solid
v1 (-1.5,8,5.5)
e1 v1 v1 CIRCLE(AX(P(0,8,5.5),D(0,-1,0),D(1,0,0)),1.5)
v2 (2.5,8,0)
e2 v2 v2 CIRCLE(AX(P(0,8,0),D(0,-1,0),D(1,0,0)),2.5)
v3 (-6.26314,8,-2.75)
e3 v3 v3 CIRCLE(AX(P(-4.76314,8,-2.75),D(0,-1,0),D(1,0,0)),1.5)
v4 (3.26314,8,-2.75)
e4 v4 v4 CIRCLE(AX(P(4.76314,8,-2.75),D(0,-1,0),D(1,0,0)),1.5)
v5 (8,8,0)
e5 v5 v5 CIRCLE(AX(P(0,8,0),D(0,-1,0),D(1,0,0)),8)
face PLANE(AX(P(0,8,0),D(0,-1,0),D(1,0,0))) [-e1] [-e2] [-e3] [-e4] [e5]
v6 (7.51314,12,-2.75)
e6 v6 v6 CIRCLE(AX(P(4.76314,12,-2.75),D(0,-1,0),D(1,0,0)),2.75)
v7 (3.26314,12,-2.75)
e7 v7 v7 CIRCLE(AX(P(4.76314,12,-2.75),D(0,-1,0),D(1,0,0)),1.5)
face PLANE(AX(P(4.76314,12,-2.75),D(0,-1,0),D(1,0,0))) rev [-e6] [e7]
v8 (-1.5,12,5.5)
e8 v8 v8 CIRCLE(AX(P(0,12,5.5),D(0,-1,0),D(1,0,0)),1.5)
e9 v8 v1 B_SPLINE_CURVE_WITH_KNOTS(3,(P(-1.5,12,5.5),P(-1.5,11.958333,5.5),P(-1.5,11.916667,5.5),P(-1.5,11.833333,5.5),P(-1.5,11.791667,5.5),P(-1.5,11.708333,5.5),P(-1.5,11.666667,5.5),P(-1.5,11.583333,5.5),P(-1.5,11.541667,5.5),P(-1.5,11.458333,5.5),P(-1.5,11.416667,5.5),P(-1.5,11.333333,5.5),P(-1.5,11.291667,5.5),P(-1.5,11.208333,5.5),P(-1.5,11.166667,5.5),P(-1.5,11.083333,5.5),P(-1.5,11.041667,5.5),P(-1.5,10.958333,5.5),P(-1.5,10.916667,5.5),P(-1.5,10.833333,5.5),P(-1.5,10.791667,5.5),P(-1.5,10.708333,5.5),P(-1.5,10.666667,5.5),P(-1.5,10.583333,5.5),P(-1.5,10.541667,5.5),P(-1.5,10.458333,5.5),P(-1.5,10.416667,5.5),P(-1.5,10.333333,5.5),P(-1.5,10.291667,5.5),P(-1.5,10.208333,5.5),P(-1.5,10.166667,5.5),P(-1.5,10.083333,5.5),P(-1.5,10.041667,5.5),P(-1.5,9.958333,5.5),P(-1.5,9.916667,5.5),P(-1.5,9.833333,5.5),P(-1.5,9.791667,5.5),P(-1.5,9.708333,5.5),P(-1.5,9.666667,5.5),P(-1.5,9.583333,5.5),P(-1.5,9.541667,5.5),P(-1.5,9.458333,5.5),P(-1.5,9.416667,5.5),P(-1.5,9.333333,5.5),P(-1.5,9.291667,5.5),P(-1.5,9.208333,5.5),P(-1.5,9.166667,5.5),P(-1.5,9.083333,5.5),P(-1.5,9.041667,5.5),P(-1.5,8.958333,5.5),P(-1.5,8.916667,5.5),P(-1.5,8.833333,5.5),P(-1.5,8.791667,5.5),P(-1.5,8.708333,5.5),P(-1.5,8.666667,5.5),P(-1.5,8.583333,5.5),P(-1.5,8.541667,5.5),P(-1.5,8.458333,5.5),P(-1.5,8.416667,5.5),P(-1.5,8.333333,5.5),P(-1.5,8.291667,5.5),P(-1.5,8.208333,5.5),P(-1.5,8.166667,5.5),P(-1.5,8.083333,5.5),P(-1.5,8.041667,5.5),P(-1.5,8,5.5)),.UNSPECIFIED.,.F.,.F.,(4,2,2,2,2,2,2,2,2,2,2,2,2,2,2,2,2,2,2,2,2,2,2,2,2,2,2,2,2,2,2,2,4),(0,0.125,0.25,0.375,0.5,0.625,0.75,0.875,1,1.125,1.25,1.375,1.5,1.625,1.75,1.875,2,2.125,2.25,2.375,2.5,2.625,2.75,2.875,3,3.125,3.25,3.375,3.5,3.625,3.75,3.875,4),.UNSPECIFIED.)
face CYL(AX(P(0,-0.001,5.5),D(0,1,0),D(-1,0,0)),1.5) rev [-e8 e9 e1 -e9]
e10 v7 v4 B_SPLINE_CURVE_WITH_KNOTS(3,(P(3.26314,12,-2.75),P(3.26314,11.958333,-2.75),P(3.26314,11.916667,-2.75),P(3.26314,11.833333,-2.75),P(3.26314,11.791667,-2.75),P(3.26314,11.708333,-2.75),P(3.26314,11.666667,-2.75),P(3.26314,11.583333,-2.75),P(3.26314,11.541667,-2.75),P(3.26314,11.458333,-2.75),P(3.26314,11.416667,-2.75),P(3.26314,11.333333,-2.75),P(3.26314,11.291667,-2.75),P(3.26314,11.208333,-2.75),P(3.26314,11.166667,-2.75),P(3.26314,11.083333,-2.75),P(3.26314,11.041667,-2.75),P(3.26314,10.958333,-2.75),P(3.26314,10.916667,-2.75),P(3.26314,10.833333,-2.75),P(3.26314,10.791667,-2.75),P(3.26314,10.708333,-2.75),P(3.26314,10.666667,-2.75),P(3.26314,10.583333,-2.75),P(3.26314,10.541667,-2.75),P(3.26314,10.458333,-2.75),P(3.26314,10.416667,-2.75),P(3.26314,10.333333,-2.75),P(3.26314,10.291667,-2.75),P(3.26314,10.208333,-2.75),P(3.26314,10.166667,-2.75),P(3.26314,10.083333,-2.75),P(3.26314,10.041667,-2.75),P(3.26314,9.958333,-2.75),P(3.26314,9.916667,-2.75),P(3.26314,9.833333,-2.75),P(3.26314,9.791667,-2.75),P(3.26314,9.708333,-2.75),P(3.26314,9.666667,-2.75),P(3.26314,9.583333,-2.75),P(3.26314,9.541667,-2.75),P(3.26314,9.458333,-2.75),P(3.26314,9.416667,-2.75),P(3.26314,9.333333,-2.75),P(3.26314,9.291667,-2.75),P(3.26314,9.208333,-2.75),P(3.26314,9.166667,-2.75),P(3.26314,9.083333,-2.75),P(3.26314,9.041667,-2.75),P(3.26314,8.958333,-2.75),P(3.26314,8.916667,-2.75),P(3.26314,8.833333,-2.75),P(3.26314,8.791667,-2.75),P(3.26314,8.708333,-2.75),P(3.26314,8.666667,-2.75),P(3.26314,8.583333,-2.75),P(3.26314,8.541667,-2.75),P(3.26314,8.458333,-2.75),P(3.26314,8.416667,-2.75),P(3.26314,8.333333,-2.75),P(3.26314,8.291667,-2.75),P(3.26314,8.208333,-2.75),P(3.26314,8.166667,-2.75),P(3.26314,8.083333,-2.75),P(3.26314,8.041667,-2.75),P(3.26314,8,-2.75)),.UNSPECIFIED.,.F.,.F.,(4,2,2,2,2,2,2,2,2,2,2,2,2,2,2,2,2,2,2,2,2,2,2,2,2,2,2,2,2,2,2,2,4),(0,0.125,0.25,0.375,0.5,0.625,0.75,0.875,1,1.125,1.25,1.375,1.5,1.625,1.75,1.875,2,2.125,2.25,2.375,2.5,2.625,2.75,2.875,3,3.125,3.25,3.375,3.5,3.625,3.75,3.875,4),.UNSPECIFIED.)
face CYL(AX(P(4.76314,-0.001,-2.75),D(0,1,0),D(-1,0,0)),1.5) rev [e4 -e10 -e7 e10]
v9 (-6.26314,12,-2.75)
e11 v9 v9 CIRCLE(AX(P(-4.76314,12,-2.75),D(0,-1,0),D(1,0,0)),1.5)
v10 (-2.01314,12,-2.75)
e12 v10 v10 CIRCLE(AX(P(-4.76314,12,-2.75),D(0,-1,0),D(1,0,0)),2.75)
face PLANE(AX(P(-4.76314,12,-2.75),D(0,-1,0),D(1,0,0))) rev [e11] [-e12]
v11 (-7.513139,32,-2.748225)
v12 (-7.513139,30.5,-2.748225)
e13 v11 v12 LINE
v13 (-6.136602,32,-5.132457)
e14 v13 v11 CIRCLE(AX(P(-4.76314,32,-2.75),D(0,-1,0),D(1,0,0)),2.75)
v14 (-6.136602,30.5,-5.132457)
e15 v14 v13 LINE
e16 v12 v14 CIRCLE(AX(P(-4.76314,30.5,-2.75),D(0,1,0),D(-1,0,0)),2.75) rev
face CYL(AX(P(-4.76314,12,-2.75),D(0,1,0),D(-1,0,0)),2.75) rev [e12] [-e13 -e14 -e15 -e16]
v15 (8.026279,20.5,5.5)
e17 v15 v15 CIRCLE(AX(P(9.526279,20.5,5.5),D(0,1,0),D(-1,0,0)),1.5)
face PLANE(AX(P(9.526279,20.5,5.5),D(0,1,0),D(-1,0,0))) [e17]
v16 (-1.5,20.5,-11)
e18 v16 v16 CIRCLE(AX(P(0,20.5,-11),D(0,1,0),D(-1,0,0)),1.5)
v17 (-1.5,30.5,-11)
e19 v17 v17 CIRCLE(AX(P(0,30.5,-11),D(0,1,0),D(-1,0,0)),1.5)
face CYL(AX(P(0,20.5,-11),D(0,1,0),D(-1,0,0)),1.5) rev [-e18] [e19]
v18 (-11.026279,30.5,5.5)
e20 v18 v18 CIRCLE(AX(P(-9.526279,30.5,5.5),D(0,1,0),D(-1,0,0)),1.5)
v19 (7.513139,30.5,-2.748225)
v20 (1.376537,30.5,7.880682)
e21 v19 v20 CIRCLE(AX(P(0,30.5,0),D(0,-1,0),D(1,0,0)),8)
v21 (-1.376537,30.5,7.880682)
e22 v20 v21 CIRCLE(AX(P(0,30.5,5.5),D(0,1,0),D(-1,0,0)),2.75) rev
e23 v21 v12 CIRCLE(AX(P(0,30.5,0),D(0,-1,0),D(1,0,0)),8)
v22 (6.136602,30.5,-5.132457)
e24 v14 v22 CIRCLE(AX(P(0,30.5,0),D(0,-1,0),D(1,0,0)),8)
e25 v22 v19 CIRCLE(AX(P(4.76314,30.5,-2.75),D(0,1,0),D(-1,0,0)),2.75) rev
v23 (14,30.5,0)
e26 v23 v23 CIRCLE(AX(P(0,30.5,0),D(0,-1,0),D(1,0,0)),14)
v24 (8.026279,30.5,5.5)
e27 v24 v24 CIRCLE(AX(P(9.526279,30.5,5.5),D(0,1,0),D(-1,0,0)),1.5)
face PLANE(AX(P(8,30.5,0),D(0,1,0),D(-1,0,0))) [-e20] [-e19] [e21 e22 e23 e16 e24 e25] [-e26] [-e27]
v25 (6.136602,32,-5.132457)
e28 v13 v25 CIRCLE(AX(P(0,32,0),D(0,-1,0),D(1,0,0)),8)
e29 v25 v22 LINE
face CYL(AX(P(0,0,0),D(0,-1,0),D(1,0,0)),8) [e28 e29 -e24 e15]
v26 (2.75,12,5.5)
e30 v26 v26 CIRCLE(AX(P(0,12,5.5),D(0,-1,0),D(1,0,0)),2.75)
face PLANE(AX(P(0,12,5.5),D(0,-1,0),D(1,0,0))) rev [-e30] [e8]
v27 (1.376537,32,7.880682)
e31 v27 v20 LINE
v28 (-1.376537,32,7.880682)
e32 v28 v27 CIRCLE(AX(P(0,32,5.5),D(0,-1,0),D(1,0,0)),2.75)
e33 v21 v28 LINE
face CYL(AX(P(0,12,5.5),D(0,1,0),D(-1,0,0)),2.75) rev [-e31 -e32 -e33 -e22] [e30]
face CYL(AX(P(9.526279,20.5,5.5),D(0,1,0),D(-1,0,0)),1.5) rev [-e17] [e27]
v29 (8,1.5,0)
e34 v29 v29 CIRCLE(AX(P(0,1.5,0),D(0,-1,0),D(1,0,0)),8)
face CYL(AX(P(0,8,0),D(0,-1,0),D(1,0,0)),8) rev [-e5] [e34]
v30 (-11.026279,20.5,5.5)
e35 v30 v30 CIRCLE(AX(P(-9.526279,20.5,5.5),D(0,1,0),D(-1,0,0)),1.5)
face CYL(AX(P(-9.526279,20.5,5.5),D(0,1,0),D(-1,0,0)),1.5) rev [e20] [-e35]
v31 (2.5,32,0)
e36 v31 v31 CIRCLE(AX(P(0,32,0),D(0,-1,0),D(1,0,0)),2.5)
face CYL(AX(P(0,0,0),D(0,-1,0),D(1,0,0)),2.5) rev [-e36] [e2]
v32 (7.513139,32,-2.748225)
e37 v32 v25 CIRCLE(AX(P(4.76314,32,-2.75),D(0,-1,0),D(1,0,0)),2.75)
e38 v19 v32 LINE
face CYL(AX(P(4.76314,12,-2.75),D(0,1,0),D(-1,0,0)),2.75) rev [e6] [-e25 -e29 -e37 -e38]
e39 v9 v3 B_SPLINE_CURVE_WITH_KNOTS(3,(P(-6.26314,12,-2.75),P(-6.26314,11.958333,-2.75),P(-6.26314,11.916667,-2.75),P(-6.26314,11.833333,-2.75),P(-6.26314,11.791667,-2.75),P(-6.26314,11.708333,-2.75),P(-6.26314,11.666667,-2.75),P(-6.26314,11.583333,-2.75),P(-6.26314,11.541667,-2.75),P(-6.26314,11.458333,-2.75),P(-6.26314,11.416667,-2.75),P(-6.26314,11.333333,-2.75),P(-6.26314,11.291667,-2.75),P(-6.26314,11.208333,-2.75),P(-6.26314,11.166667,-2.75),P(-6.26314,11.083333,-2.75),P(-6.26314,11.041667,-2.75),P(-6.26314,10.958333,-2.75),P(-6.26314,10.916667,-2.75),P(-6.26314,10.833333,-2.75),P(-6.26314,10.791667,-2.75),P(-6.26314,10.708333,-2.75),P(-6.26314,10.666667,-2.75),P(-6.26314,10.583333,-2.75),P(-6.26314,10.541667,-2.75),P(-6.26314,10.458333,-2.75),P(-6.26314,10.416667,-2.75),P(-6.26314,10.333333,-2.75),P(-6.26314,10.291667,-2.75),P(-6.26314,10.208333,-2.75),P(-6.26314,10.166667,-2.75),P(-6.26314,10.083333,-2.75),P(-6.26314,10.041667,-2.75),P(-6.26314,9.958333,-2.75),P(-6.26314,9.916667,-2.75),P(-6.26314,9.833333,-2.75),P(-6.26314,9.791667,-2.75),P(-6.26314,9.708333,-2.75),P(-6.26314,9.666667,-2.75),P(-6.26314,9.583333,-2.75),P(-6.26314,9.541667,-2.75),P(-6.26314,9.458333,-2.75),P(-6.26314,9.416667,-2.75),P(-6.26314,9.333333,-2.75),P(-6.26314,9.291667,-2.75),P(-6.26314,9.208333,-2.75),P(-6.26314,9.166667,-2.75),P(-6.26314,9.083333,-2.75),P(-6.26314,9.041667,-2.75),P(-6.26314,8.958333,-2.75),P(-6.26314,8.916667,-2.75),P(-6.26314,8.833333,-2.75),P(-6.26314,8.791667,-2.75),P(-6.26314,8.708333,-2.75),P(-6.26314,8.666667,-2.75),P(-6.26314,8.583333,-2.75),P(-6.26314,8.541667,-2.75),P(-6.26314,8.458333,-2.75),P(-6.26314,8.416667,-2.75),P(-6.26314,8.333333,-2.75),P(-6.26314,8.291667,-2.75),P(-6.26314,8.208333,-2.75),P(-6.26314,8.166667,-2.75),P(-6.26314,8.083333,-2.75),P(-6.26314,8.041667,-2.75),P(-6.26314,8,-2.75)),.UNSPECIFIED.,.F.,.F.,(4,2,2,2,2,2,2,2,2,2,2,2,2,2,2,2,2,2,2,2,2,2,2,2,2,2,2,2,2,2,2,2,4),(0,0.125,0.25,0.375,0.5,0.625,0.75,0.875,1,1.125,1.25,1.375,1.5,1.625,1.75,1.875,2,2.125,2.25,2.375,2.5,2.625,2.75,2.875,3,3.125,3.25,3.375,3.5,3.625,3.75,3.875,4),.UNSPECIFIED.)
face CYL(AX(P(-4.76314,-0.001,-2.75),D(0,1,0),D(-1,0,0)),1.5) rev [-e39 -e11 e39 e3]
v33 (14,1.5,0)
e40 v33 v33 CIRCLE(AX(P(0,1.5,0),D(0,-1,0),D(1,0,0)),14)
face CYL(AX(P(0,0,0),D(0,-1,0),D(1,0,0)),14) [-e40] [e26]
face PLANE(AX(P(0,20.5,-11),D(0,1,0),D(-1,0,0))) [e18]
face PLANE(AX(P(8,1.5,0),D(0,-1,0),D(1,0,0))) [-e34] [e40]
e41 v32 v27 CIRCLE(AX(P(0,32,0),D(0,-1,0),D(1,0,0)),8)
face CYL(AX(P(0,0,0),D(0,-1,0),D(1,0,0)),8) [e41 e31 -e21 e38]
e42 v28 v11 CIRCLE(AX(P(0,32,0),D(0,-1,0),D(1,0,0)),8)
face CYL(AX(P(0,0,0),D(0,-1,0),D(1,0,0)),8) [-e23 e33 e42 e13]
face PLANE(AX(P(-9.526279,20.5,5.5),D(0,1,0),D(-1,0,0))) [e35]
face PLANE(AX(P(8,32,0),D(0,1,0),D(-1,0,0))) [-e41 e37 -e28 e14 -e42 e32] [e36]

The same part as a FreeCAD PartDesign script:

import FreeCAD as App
import Part
import Sketcher

doc = App.newDocument("Part")
body = doc.addObject("PartDesign::Body", "Body")

# Sketch on XY plane
sketch1 = body.newObject("Sketcher::SketchObject", "Sketch")
sketch1.AttachmentSupport = (doc.getObject("XY_Plane"), [""])
sketch1.MapMode = "FlatFace"
sketch1.addGeometry([
    Part.LineSegment(App.Vector(8, 0, 0), App.Vector(8, 1.5, 0)),  # 0
    Part.LineSegment(App.Vector(8, 1.5, 0), App.Vector(14, 1.5, 0)),  # 1
    Part.LineSegment(App.Vector(14, 1.5, 0), App.Vector(14, 30.5, 0)),  # 2
    Part.LineSegment(App.Vector(14, 30.5, 0), App.Vector(8, 30.5, 0)),  # 3
    Part.LineSegment(App.Vector(8, 30.5, 0), App.Vector(8, 32, 0)),  # 4
    Part.LineSegment(App.Vector(8, 32, 0), App.Vector(2.5, 32, 0)),  # 5
    Part.LineSegment(App.Vector(2.5, 32, 0), App.Vector(2.5, 0, 0)),  # 6
    Part.LineSegment(App.Vector(2.5, 0, 0), App.Vector(8, 0, 0)),  # 7
], False)
sketch1.addConstraint([
    Sketcher.Constraint("Coincident", 0, 2, 1, 1),
    Sketcher.Constraint("Coincident", 1, 2, 2, 1),
    Sketcher.Constraint("Coincident", 2, 2, 3, 1),
    Sketcher.Constraint("Coincident", 3, 2, 4, 1),
    Sketcher.Constraint("Coincident", 4, 2, 5, 1),
    Sketcher.Constraint("Coincident", 5, 2, 6, 1),
    Sketcher.Constraint("Coincident", 6, 2, 7, 1),
    Sketcher.Constraint("Coincident", 7, 2, 0, 1),
    Sketcher.Constraint("Vertical", 0),
    Sketcher.Constraint("Horizontal", 1),
    Sketcher.Constraint("Vertical", 2),
    Sketcher.Constraint("Horizontal", 3),
    Sketcher.Constraint("Vertical", 4),
    Sketcher.Constraint("Horizontal", 5),
    Sketcher.Constraint("Vertical", 6),
    Sketcher.Constraint("Horizontal", 7),
    Sketcher.Constraint("PointOnObject", 6, 2, -1),
    Sketcher.Constraint("Vertical", 0, 2, 3, 2),
    Sketcher.Constraint("Equal", 0, 4),
    Sketcher.Constraint("DistanceX", 1, 1, 1, 2, 6.0),
    Sketcher.Constraint("DistanceY", 2, 1, 2, 2, 29.0),
    Sketcher.Constraint("DistanceY", 6, 2, 6, 1, 32.0),
    Sketcher.Constraint("DistanceX", 5, 2, 5, 1, 5.5),
    Sketcher.Constraint("DistanceX", -1, 1, 0, 2, 8.0),
])
revolution = body.newObject("PartDesign::Revolution", "Revolution")
revolution.Profile = sketch1
revolution.ReferenceAxis = (sketch1, ["V_Axis"])
revolution.Angle = 360

# Sketch on XZ plane
sketch2 = body.newObject("Sketcher::SketchObject", "Sketch001")
sketch2.AttachmentSupport = (doc.getObject("XZ_Plane"), [""])
sketch2.MapMode = "FlatFace"
sketch2.AttachmentOffset = App.Placement(App.Vector(0, 0, -30.5), App.Rotation())
sketch2.addGeometry([
    Part.Circle(App.Vector(0, -11, 0), App.Vector(0, 0, 1), 1.5),
    Part.Circle(App.Vector(9.526279, 5.5, 0), App.Vector(0, 0, 1), 1.5),
    Part.Circle(App.Vector(-9.526279, 5.5, 0), App.Vector(0, 0, 1), 1.5),
], False)
sketch2.addConstraint([
    Sketcher.Constraint("Equal", 0, 1),
    Sketcher.Constraint("Equal", 1, 2),
    Sketcher.Constraint("Symmetric", 1, 3, 2, 3, -2),
    Sketcher.Constraint("PointOnObject", 0, 3, -2),
    Sketcher.Constraint("Diameter", 0, 3.0),
    Sketcher.Constraint("DistanceY", 0, 3, -1, 1, 11.0),
    Sketcher.Constraint("DistanceY", -1, 1, 1, 3, 5.5),
    Sketcher.Constraint("DistanceX", -1, 1, 1, 3, 9.526279),
])
pocket1 = body.newObject("PartDesign::Pocket", "Pocket")
pocket1.Profile = sketch2
pocket1.Length = 10
pocket1.Reversed = True

# Sketch on XZ plane
sketch3 = body.newObject("Sketcher::SketchObject", "Sketch002")
sketch3.AttachmentSupport = (doc.getObject("XZ_Plane"), [""])
sketch3.MapMode = "FlatFace"
sketch3.AttachmentOffset = App.Placement(App.Vector(0, 0, -1.5), App.Rotation())
sketch3.addGeometry([
    Part.Circle(App.Vector(0, 5.5, 0), App.Vector(0, 0, 1), 1.5),
    Part.Circle(App.Vector(4.76314, -2.75, 0), App.Vector(0, 0, 1), 1.5),
    Part.Circle(App.Vector(-4.76314, -2.75, 0), App.Vector(0, 0, 1), 1.5),
], False)
sketch3.addConstraint([
    Sketcher.Constraint("Equal", 0, 1),
    Sketcher.Constraint("Equal", 1, 2),
    Sketcher.Constraint("Symmetric", 1, 3, 2, 3, -2),
    Sketcher.Constraint("PointOnObject", 0, 3, -2),
    Sketcher.Constraint("Diameter", 0, 3.0),
    Sketcher.Constraint("DistanceY", -1, 1, 0, 3, 5.5),
    Sketcher.Constraint("DistanceY", 1, 3, -1, 1, 2.75),
    Sketcher.Constraint("DistanceX", -1, 1, 1, 3, 4.76314),
])
pocket2 = body.newObject("PartDesign::Pocket", "Pocket001")
pocket2.Profile = sketch3
pocket2.Length = 37.362756

# Sketch on XZ plane
sketch4 = body.newObject("Sketcher::SketchObject", "Sketch003")
sketch4.AttachmentSupport = (doc.getObject("XZ_Plane"), [""])
sketch4.MapMode = "FlatFace"
sketch4.AttachmentOffset = App.Placement(App.Vector(0, 0, -1.5), App.Rotation())
sketch4.addGeometry(Part.Circle(App.Vector(0, 5.5, 0), App.Vector(0, 0, 1), 1.5), False)
sketch4.addConstraint([
    Sketcher.Constraint("PointOnObject", 0, 3, -2),
    Sketcher.Constraint("Diameter", 0, 3.0),
    Sketcher.Constraint("DistanceY", -1, 1, 0, 3, 5.5),
])
pocket3 = body.newObject("PartDesign::Pocket", "Pocket002")
pocket3.Profile = sketch4
pocket3.Type = "UpToFirst"
pocket3.Reversed = True

# Sketch on XZ plane
sketch5 = body.newObject("Sketcher::SketchObject", "Sketch004")
sketch5.AttachmentSupport = (doc.getObject("XZ_Plane"), [""])
sketch5.MapMode = "FlatFace"
sketch5.AttachmentOffset = App.Placement(App.Vector(0, 0, -1.5), App.Rotation())
sketch5.addGeometry(Part.Circle(App.Vector(4.76314, -2.75, 0), App.Vector(0, 0, 1), 1.5), False)
sketch5.addConstraint([
    Sketcher.Constraint("Diameter", 0, 3.0),
    Sketcher.Constraint("DistanceY", 0, 3, -1, 1, 2.75),
    Sketcher.Constraint("DistanceX", -1, 1, 0, 3, 4.76314),
])
pocket4 = body.newObject("PartDesign::Pocket", "Pocket003")
pocket4.Profile = sketch5
pocket4.Type = "UpToFirst"
pocket4.Reversed = True

# Sketch on XZ plane
sketch6 = body.newObject("Sketcher::SketchObject", "Sketch005")
sketch6.AttachmentSupport = (doc.getObject("XZ_Plane"), [""])
sketch6.MapMode = "FlatFace"
sketch6.AttachmentOffset = App.Placement(App.Vector(0, 0, -1.5), App.Rotation())
sketch6.addGeometry(Part.Circle(App.Vector(-4.76314, -2.75, 0), App.Vector(0, 0, 1), 1.5), False)
sketch6.addConstraint([
    Sketcher.Constraint("Diameter", 0, 3.0),
    Sketcher.Constraint("DistanceY", 0, 3, -1, 1, 2.75),
    Sketcher.Constraint("DistanceX", 0, 3, -1, 1, 4.76314),
])
pocket5 = body.newObject("PartDesign::Pocket", "Pocket004")
pocket5.Profile = sketch6
pocket5.Type = "UpToFirst"
pocket5.Reversed = True

# Sketch on XZ plane
sketch7 = body.newObject("Sketcher::SketchObject", "Sketch006")
sketch7.AttachmentSupport = (doc.getObject("XZ_Plane"), [""])
sketch7.MapMode = "FlatFace"
sketch7.AttachmentOffset = App.Placement(App.Vector(0, 0, -32), App.Rotation())
sketch7.addGeometry([
    Part.Circle(App.Vector(0, 5.5, 0), App.Vector(0, 0, 1), 2.75),
    Part.Circle(App.Vector(4.76314, -2.75, 0), App.Vector(0, 0, 1), 2.75),
    Part.Circle(App.Vector(-4.76314, -2.75, 0), App.Vector(0, 0, 1), 2.75),
], False)
sketch7.addConstraint([
    Sketcher.Constraint("Equal", 0, 1),
    Sketcher.Constraint("Equal", 1, 2),
    Sketcher.Constraint("Symmetric", 1, 3, 2, 3, -2),
    Sketcher.Constraint("PointOnObject", 0, 3, -2),
    Sketcher.Constraint("Diameter", 0, 5.5),
    Sketcher.Constraint("DistanceY", -1, 1, 0, 3, 5.5),
    Sketcher.Constraint("DistanceY", 1, 3, -1, 1, 2.75),
    Sketcher.Constraint("DistanceX", -1, 1, 1, 3, 4.76314),
])
pocket6 = body.newObject("PartDesign::Pocket", "Pocket005")
pocket6.Profile = sketch7
pocket6.Length = 20
pocket6.Reversed = True

# Sketch on XZ plane
sketch8 = body.newObject("Sketcher::SketchObject", "Sketch007")
sketch8.AttachmentSupport = (doc.getObject("XZ_Plane"), [""])
sketch8.MapMode = "FlatFace"
sketch8.AttachmentOffset = App.Placement(App.Vector(0, 0, -8), App.Rotation())
sketch8.addGeometry(Part.Circle(App.Vector(0, 0, 0), App.Vector(0, 0, 1), 8), False)
sketch8.addConstraint([
    Sketcher.Constraint("Coincident", 0, 3, -1, 1),
    Sketcher.Constraint("Diameter", 0, 16.0),
])
pocket7 = body.newObject("PartDesign::Pocket", "Pocket006")
pocket7.Profile = sketch8
pocket7.Length = 8
pocket7.Reversed = True

doc.recompute()
